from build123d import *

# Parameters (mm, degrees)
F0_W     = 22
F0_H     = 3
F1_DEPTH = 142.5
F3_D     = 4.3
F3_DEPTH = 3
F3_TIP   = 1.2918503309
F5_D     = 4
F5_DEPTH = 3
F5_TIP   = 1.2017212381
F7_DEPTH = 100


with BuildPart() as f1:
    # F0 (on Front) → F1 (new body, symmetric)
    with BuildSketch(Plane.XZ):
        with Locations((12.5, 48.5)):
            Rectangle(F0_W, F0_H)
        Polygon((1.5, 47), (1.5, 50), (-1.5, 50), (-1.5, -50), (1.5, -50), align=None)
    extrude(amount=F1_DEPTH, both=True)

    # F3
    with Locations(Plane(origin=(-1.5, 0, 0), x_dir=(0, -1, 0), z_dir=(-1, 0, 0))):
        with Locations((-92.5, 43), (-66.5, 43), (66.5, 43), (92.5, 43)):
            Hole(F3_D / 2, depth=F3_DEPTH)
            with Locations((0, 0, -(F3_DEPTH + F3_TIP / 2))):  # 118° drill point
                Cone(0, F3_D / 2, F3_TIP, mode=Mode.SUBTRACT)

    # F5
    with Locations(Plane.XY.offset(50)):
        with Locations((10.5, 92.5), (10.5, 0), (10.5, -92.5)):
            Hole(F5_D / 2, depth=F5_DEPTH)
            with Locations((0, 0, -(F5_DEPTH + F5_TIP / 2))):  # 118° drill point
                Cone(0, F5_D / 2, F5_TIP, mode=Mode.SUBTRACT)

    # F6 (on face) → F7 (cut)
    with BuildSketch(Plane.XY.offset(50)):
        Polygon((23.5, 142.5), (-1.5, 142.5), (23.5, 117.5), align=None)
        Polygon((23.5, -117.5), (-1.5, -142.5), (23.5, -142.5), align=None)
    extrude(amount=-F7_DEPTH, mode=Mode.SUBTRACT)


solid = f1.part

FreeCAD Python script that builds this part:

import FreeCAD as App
import Part
import Sketcher

V = App.Vector
Q = App.Units.Quantity


def add_polygon(sketch, points):
    """Adds a closed chain of lines whose ends are joined by coincident constraints."""
    first, n = sketch.GeometryCount, len(points)
    for a, b in zip(points, points[1:] + points[:1]):
        sketch.addGeometry(Part.LineSegment(App.Vector(*a, 0), App.Vector(*b, 0)), False)
    for i in range(n):
        sketch.addConstraint(Sketcher.Constraint("Coincident", first + i, 2, first + (i + 1) % n, 1))

doc = App.newDocument("Part")
body = doc.addObject("PartDesign::Body", "Body")

sketch1 = body.newObject("Sketcher::SketchObject", "Sketch")
sketch1.AttachmentSupport = (doc.getObject("XZ_Plane"), [""])
sketch1.MapMode = "FlatFace"
add_polygon(sketch1, [(1.5, 47), (23.5, 47), (23.5, 50), (-1.5, 50), (-1.5, -50), (1.5, -50)])
sketch1.addConstraint([
    Sketcher.Constraint("Horizontal", 0),
    Sketcher.Constraint("Vertical", 1),
    Sketcher.Constraint("Horizontal", 2),
    Sketcher.Constraint("Vertical", 3),
    Sketcher.Constraint("Horizontal", 4),
    Sketcher.Constraint("Vertical", 5),
    Sketcher.Constraint("Symmetric", 2, 2, 4, 2, -1, 1),
    Sketcher.Constraint("Equal", 4, 1),
    Sketcher.Constraint("DistanceX", 0, 1, 0, 2, Q("22 mm")),
    Sketcher.Constraint("DistanceX", 2, 2, 2, 1, Q("25 mm")),
    Sketcher.Constraint("DistanceY", 3, 2, 3, 1, Q("100 mm")),
])
pad1 = body.newObject("PartDesign::Pad", "Pad")
pad1.Profile = sketch1
pad1.Length = 285
pad1.Midplane = True

sketch2 = body.newObject("Sketcher::SketchObject", "Sketch001")
sketch2.AttachmentSupport = (doc.getObject("YZ_Plane"), [""])
sketch2.MapMode = "FlatFace"
sketch2.AttachmentOffset = App.Placement(V(0, 0, -1.5), App.Rotation())
sketch2.addGeometry([
    Part.Circle(V(92.5, 43, 0), V(0, 0, 1), 2.1),
    Part.Circle(V(66.5, 43, 0), V(0, 0, 1), 2.1),
    Part.Circle(V(-66.5, 43, 0), V(0, 0, 1), 2.1),
    Part.Circle(V(-92.5, 43, 0), V(0, 0, 1), 2.1),
], False)
sketch2.addConstraint([
    Sketcher.Constraint("Equal", 0, 1),
    Sketcher.Constraint("Equal", 1, 2),
    Sketcher.Constraint("Equal", 2, 3),
    Sketcher.Constraint("Symmetric", 1, 3, 2, 3, -2),
    Sketcher.Constraint("Symmetric", 0, 3, 3, 3, -2),
    Sketcher.Constraint("Horizontal", 0, 3, 1, 3),
    Sketcher.Constraint("Diameter", 0, Q("4.3 mm")),
    Sketcher.Constraint("DistanceY", -1, 1, 0, 3, Q("43 mm")),
    Sketcher.Constraint("DistanceX", 1, 3, 0, 3, Q("26 mm")),
    Sketcher.Constraint("DistanceX", 2, 3, 1, 3, Q("133 mm")),
])
doc.recompute()
hole = body.newObject("PartDesign::Hole", "Hole")
hole.Profile = sketch2
hole.ThreadType = "None"
hole.Diameter = 4.3
hole.DepthType = "Dimension"
hole.Depth = 3
hole.DrillPoint = "Angled"
hole.DrillPointAngle = 118
hole.Reversed = True

sketch3 = body.newObject("Sketcher::SketchObject", "Sketch002")
sketch3.AttachmentSupport = (doc.getObject("XY_Plane"), [""])
sketch3.MapMode = "FlatFace"
sketch3.AttachmentOffset = App.Placement(V(0, 0, 50), App.Rotation())
sketch3.addGeometry([
    Part.Circle(V(10.5, 92.5, 0), V(0, 0, 1), 2),
    Part.Circle(V(10.5, 0, 0), V(0, 0, 1), 2),
    Part.Circle(V(10.5, -92.5, 0), V(0, 0, 1), 2),
], False)
sketch3.addConstraint([
    Sketcher.Constraint("Equal", 0, 1),
    Sketcher.Constraint("Equal", 1, 2),
    Sketcher.Constraint("Symmetric", 0, 3, 2, 3, -1),
    Sketcher.Constraint("PointOnObject", 1, 3, -1),
    Sketcher.Constraint("Vertical", 0, 3, 1, 3),
    Sketcher.Constraint("Diameter", 0, Q("4 mm")),
    Sketcher.Constraint("DistanceY", 2, 3, 0, 3, Q("185 mm")),
    Sketcher.Constraint("DistanceX", -1, 1, 0, 3, Q("10.5 mm")),
])
doc.recompute()
hole2 = body.newObject("PartDesign::Hole", "Hole001")
hole2.Profile = sketch3
hole2.ThreadType = "None"
hole2.Diameter = 4
hole2.DepthType = "Dimension"
hole2.Depth = 3
hole2.DrillPoint = "Angled"
hole2.DrillPointAngle = 118

sketch4 = body.newObject("Sketcher::SketchObject", "Sketch003")
sketch4.AttachmentSupport = (doc.getObject("XY_Plane"), [""])
sketch4.MapMode = "FlatFace"
sketch4.AttachmentOffset = App.Placement(V(0, 0, 50), App.Rotation())
add_polygon(sketch4, [(24, 142), (-2, 142), (24, 118)])
add_polygon(sketch4, [(24, -118), (-2, -142), (24, -142)])
sketch4.addConstraint([
    Sketcher.Constraint("Horizontal", 0),
    Sketcher.Constraint("Vertical", 2),
    Sketcher.Constraint("Horizontal", 4),
    Sketcher.Constraint("Vertical", 5),
    Sketcher.Constraint("Symmetric", 0, 2, 3, 2, -1),
    Sketcher.Constraint("Symmetric", 1, 2, 5, 2, -1),
    Sketcher.Constraint("Perpendicular", 1, 3),
    Sketcher.Constraint("DistanceX", 0, 2, 0, 1, Q("25 mm")),
    Sketcher.Constraint("DistanceY", 3, 2, 1, 2, Q("260 mm")),
    Sketcher.Constraint("DistanceX", 0, 2, -1, 1, Q("1.5 mm")),
])
pocket1 = body.newObject("PartDesign::Pocket", "Pocket")
pocket1.Profile = sketch4
pocket1.Length = 100

doc.recompute()
